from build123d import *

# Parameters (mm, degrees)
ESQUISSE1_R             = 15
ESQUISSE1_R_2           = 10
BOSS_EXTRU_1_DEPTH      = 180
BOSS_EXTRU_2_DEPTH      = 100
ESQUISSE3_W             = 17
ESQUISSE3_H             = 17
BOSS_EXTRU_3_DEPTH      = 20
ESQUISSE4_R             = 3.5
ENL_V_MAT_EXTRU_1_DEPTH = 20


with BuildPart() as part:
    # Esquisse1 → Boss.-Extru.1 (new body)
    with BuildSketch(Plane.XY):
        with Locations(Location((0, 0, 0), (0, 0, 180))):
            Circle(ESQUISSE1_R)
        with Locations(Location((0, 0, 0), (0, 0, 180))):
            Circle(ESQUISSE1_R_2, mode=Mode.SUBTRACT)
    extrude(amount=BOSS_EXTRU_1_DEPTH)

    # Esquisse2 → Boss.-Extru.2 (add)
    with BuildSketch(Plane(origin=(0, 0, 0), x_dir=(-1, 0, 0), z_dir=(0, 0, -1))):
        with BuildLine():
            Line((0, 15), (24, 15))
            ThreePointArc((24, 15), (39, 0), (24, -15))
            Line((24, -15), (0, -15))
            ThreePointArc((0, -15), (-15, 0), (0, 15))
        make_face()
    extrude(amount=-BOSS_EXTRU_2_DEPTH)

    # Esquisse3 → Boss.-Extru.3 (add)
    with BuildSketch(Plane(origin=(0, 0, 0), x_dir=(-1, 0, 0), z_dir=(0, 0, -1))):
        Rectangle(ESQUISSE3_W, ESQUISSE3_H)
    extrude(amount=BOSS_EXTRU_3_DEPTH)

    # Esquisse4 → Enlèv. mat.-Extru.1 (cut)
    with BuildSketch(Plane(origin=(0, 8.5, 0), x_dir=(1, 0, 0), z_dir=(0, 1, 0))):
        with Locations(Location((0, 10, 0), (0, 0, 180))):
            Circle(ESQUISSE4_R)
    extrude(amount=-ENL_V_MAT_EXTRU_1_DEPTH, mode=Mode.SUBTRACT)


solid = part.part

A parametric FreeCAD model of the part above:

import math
import FreeCAD as App
import Part
import Sketcher
from FreeCAD import Vector


def add_polygon(sketch, points):
    """Adds a closed chain of lines whose ends are joined by coincident constraints."""
    first, n = sketch.GeometryCount, len(points)
    for a, b in zip(points, points[1:] + points[:1]):
        sketch.addGeometry(Part.LineSegment(App.Vector(*a, 0), App.Vector(*b, 0)), False)
    for i in range(n):
        sketch.addConstraint(Sketcher.Constraint("Coincident", first + i, 2, first + (i + 1) % n, 1))

doc = App.newDocument("Part")
body = doc.addObject("PartDesign::Body", "Body")

# Sketch on XY plane
sketch1 = body.newObject("Sketcher::SketchObject", "Sketch")
sketch1.AttachmentSupport = (doc.getObject("XY_Plane"), [""])
sketch1.MapMode = "FlatFace"
sketch1.addGeometry(Part.Circle(Vector(0, 0, 0), Vector(0, 0, 1), 15), False)
sketch1.addGeometry(Part.Circle(Vector(0, 0, 0), Vector(0, 0, 1), 10), False)
sketch1.addConstraint(Sketcher.Constraint("Coincident", 0, 3, -1, 1))
sketch1.addConstraint(Sketcher.Constraint("Coincident", 1, 3, -1, 1))
sketch1.addConstraint(Sketcher.Constraint("Diameter", 0, 30.0))
sketch1.addConstraint(Sketcher.Constraint("Diameter", 1, 20.0))
pad1 = body.newObject("PartDesign::Pad", "Pad")
pad1.Profile = sketch1
pad1.Length = 180

# Sketch on XY plane
sketch2 = body.newObject("Sketcher::SketchObject", "Sketch001")
sketch2.AttachmentSupport = (doc.getObject("XY_Plane"), [""])
sketch2.MapMode = "FlatFace"
sketch2.addGeometry(Part.LineSegment(Vector(-24, 15, 0), Vector(0, 15, 0)), False)
sketch2.addGeometry(Part.ArcOfCircle(Part.Circle(Vector(0, 0, 0), Vector(0, 0, 1), 15), math.radians(-90), math.radians(90)), False)
sketch2.addGeometry(Part.LineSegment(Vector(0, -15, 0), Vector(-24, -15, 0)), False)
sketch2.addGeometry(Part.ArcOfCircle(Part.Circle(Vector(-24, 0, 0), Vector(0, 0, 1), 15), math.radians(90), math.radians(270)), False)
sketch2.addConstraint(Sketcher.Constraint("Tangent", 0, 2, 1, 2))
sketch2.addConstraint(Sketcher.Constraint("Tangent", 1, 1, 2, 1))
sketch2.addConstraint(Sketcher.Constraint("Tangent", 2, 2, 3, 2))
sketch2.addConstraint(Sketcher.Constraint("Tangent", 3, 1, 0, 1))
sketch2.addConstraint(Sketcher.Constraint("Horizontal", 0))
sketch2.addConstraint(Sketcher.Constraint("Horizontal", 2))
sketch2.addConstraint(Sketcher.Constraint("Coincident", 1, 3, -1, 1))
sketch2.addConstraint(Sketcher.Constraint("Radius", 1, 15.0))
sketch2.addConstraint(Sketcher.Constraint("DistanceX", 0, 1, 0, 2, 24.0))
pad2 = body.newObject("PartDesign::Pad", "Pad001")
pad2.Profile = sketch2
pad2.Length = 100

# Sketch on XY plane
sketch3 = body.newObject("Sketcher::SketchObject", "Sketch002")
sketch3.AttachmentSupport = (doc.getObject("XY_Plane"), [""])
sketch3.MapMode = "FlatFace"
add_polygon(sketch3, [(8.5, 8.5), (8.5, -8.5), (-8.5, -8.5), (-8.5, 8.5)])  # lines 0-3
sketch3.addConstraint(Sketcher.Constraint("Vertical", 0))
sketch3.addConstraint(Sketcher.Constraint("Horizontal", 1))
sketch3.addConstraint(Sketcher.Constraint("Vertical", 2))
sketch3.addConstraint(Sketcher.Constraint("Horizontal", 3))
sketch3.addConstraint(Sketcher.Constraint("Symmetric", 0, 2, 2, 2, -1, 1))
sketch3.addConstraint(Sketcher.Constraint("Equal", 3, 0))
sketch3.addConstraint(Sketcher.Constraint("DistanceX", 1, 2, 1, 1, 17.0))
pad3 = body.newObject("PartDesign::Pad", "Pad002")
pad3.Profile = sketch3
pad3.Length = 20
pad3.Reversed = True

# Sketch on XZ plane
sketch4 = body.newObject("Sketcher::SketchObject", "Sketch003")
sketch4.AttachmentSupport = (doc.getObject("XZ_Plane"), [""])
sketch4.MapMode = "FlatFace"
sketch4.AttachmentOffset = App.Placement(Vector(0, 0, -8.5), App.Rotation())
sketch4.addGeometry(Part.Circle(Vector(0, -10, 0), Vector(0, 0, 1), 3.5), False)
sketch4.addConstraint(Sketcher.Constraint("PointOnObject", 0, 3, -2))
sketch4.addConstraint(Sketcher.Constraint("Diameter", 0, 7.0))
sketch4.addConstraint(Sketcher.Constraint("DistanceY", 0, 3, -1, 1, 10.0))
pocket1 = body.newObject("PartDesign::Pocket", "Pocket")
pocket1.Profile = sketch4
pocket1.Length = 20
pocket1.Reversed = True

doc.recompute()
